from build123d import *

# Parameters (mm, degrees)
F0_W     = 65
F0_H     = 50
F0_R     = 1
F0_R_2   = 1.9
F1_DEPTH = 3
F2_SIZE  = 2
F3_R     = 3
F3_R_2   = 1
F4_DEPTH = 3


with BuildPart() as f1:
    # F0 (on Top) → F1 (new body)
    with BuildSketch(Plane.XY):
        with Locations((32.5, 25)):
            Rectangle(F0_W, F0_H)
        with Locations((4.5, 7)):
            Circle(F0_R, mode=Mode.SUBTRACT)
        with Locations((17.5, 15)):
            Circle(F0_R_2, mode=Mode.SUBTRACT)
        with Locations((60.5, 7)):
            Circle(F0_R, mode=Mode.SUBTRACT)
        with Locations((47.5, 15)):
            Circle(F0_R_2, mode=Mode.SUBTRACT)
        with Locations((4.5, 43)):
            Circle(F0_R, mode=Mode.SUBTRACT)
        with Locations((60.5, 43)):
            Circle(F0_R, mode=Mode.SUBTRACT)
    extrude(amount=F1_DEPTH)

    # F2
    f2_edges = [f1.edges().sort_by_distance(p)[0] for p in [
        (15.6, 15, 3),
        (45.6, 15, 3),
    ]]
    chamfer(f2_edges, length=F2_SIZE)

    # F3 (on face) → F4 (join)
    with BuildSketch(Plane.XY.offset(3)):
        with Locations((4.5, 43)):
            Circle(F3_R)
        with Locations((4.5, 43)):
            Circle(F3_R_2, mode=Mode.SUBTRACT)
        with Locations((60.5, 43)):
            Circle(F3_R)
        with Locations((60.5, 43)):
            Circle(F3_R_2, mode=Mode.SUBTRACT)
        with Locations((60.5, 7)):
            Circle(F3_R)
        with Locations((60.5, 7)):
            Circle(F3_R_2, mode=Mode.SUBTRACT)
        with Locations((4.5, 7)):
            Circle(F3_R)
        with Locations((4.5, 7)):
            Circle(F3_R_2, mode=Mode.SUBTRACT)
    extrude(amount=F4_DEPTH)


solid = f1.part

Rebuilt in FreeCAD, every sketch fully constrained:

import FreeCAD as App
import Part
import Sketcher

V = App.Vector
Q = App.Units.Quantity


def edges_at(feature, points):
    """Names of the edges that pass closest to the given points."""
    edges = feature.Shape.Edges
    near = lambda p: min(range(len(edges)), key=lambda i: edges[i].distToShape(Part.Vertex(*p))[0])
    return sorted({f"Edge{near(p) + 1}" for p in points})

doc = App.newDocument("Part")
params = doc.addObject("Spreadsheet::Sheet", "Params")
for row, (alias, value) in enumerate([
    ("sketch1_diameter", "2 mm"),
    ("sketch1_diameter2", "3.8 mm"),
    ("sketch1_width", "65 mm"),
    ("sketch1_height", "50 mm"),
    ("pad1_length", "3 mm"),
    ("chamfer_size", "2 mm"),
    ("sketch2_diameter", "6 mm"),
    ("sketch2_diameter2", "2 mm"),
    ("pad2_length", "3 mm"),
], start=1):
    params.set(f"A{row}", alias)
    params.set(f"B{row}", "=" + value)
    params.setAlias(f"B{row}", alias)

body = doc.addObject("PartDesign::Body", "Body")

# Sketch on XY plane
sketch1 = body.newObject("Sketcher::SketchObject", "Sketch")
sketch1.AttachmentSupport = (doc.getObject("XY_Plane"), [""])
sketch1.MapMode = "FlatFace"
sketch1.addGeometry([
    Part.LineSegment(V(0, 50, 0), V(0, 0, 0)),  # 0
    Part.LineSegment(V(0, 0, 0), V(65, 0, 0)),  # 1
    Part.LineSegment(V(65, 0, 0), V(65, 50, 0)),  # 2
    Part.LineSegment(V(65, 50, 0), V(0, 50, 0)),  # 3
    Part.Circle(V(4.5, 7, 0), V(0, 0, 1), 1),  # 4
    Part.Circle(V(17.5, 15, 0), V(0, 0, 1), 1.9),  # 5
    Part.Circle(V(60.5, 7, 0), V(0, 0, 1), 1),  # 6
    Part.Circle(V(47.5, 15, 0), V(0, 0, 1), 1.9),  # 7
    Part.Circle(V(4.5, 43, 0), V(0, 0, 1), 1),  # 8
    Part.Circle(V(60.5, 43, 0), V(0, 0, 1), 1),  # 9
], False)
sketch1.addConstraint([
    Sketcher.Constraint("Coincident", 0, 2, 1, 1),
    Sketcher.Constraint("Coincident", 1, 2, 2, 1),
    Sketcher.Constraint("Coincident", 2, 2, 3, 1),
    Sketcher.Constraint("Coincident", 3, 2, 0, 1),
    Sketcher.Constraint("Vertical", 0),
    Sketcher.Constraint("Horizontal", 1),
    Sketcher.Constraint("Vertical", 2),
    Sketcher.Constraint("Horizontal", 3),
    Sketcher.Constraint("Coincident", 0, 2, -1, 1),
    Sketcher.Constraint("Equal", 4, 6),
    Sketcher.Constraint("Equal", 5, 7),
    Sketcher.Constraint("Equal", 6, 8),
    Sketcher.Constraint("Equal", 8, 9),
    Sketcher.Constraint("Horizontal", 4, 3, 6, 3),
    Sketcher.Constraint("Horizontal", 5, 3, 7, 3),
    Sketcher.Constraint("Horizontal", 8, 3, 9, 3),
    Sketcher.Constraint("Vertical", 4, 3, 8, 3),
    Sketcher.Constraint("Vertical", 6, 3, 9, 3),
    Sketcher.Constraint("Diameter", 4, Q("2 mm")),
    Sketcher.Constraint("Diameter", 5, Q("3.8 mm")),
    Sketcher.Constraint("DistanceX", 1, 1, 1, 2, Q("65 mm")),
    Sketcher.Constraint("DistanceY", 0, 2, 0, 1, Q("50 mm")),
    Sketcher.Constraint("DistanceY", -1, 1, 4, 3, Q("7 mm")),
    Sketcher.Constraint("DistanceY", -1, 1, 5, 3, Q("15 mm")),
    Sketcher.Constraint("DistanceY", -1, 1, 8, 3, Q("43 mm")),
    Sketcher.Constraint("DistanceX", 4, 3, 5, 3, Q("13 mm")),
    Sketcher.Constraint("DistanceX", 5, 3, 6, 3, Q("43 mm")),
    Sketcher.Constraint("DistanceX", 7, 3, 6, 3, Q("13 mm")),
    Sketcher.Constraint("DistanceX", -1, 1, 4, 3, Q("4.5 mm")),
])
sketch1.setExpression("Constraints[18]", "Params.sketch1_diameter")
sketch1.setExpression("Constraints[19]", "Params.sketch1_diameter2")
sketch1.setExpression("Constraints[20]", "Params.sketch1_width")
sketch1.setExpression("Constraints[21]", "Params.sketch1_height")
pad1 = body.newObject("PartDesign::Pad", "Pad")
pad1.Profile = sketch1
pad1.setExpression("Length", "Params.pad1_length")
doc.recompute()

chamfer = body.newObject("PartDesign::Chamfer", "Chamfer")
chamfer.Base = (pad1, edges_at(pad1, [(15.6, 15, 3), (45.6, 15, 3)]))
chamfer.setExpression("Size", "Params.chamfer_size")

# Sketch on XY plane
sketch2 = body.newObject("Sketcher::SketchObject", "Sketch001")
sketch2.AttachmentSupport = (doc.getObject("XY_Plane"), [""])
sketch2.MapMode = "FlatFace"
sketch2.AttachmentOffset = App.Placement(V(0, 0, 3), App.Rotation())
sketch2.addGeometry([
    Part.Circle(V(4.5, 43, 0), V(0, 0, 1), 3),  # 0
    Part.Circle(V(4.5, 43, 0), V(0, 0, 1), 1),  # 1
    Part.Circle(V(60.5, 43, 0), V(0, 0, 1), 3),  # 2
    Part.Circle(V(60.5, 43, 0), V(0, 0, 1), 1),  # 3
    Part.Circle(V(60.5, 7, 0), V(0, 0, 1), 3),  # 4
    Part.Circle(V(60.5, 7, 0), V(0, 0, 1), 1),  # 5
    Part.Circle(V(4.5, 7, 0), V(0, 0, 1), 3),  # 6
    Part.Circle(V(4.5, 7, 0), V(0, 0, 1), 1),  # 7
], False)
sketch2.addConstraint([
    Sketcher.Constraint("Coincident", 1, 3, 0, 3),
    Sketcher.Constraint("Coincident", 3, 3, 2, 3),
    Sketcher.Constraint("Coincident", 5, 3, 4, 3),
    Sketcher.Constraint("Coincident", 7, 3, 6, 3),
    Sketcher.Constraint("Equal", 0, 2),
    Sketcher.Constraint("Equal", 1, 3),
    Sketcher.Constraint("Equal", 2, 4),
    Sketcher.Constraint("Equal", 3, 5),
    Sketcher.Constraint("Equal", 4, 6),
    Sketcher.Constraint("Equal", 5, 7),
    Sketcher.Constraint("Horizontal", 1, 3, 2, 3),
    Sketcher.Constraint("Horizontal", 5, 3, 6, 3),
    Sketcher.Constraint("Vertical", 3, 3, 4, 3),
    Sketcher.Constraint("Vertical", 1, 3, 6, 3),
    Sketcher.Constraint("Diameter", 0, Q("6 mm")),
    Sketcher.Constraint("Diameter", 1, Q("2 mm")),
    Sketcher.Constraint("DistanceY", -1, 1, 0, 3, Q("43 mm")),
    Sketcher.Constraint("DistanceY", -1, 1, 4, 3, Q("7 mm")),
    Sketcher.Constraint("DistanceX", 0, 3, 2, 3, Q("56 mm")),
    Sketcher.Constraint("DistanceX", -1, 1, 0, 3, Q("4.5 mm")),
])
sketch2.setExpression("Constraints[14]", "Params.sketch2_diameter")
sketch2.setExpression("Constraints[15]", "Params.sketch2_diameter2")
pad2 = body.newObject("PartDesign::Pad", "Pad001")
pad2.Profile = sketch2
pad2.setExpression("Length", "Params.pad2_length")

doc.recompute()
